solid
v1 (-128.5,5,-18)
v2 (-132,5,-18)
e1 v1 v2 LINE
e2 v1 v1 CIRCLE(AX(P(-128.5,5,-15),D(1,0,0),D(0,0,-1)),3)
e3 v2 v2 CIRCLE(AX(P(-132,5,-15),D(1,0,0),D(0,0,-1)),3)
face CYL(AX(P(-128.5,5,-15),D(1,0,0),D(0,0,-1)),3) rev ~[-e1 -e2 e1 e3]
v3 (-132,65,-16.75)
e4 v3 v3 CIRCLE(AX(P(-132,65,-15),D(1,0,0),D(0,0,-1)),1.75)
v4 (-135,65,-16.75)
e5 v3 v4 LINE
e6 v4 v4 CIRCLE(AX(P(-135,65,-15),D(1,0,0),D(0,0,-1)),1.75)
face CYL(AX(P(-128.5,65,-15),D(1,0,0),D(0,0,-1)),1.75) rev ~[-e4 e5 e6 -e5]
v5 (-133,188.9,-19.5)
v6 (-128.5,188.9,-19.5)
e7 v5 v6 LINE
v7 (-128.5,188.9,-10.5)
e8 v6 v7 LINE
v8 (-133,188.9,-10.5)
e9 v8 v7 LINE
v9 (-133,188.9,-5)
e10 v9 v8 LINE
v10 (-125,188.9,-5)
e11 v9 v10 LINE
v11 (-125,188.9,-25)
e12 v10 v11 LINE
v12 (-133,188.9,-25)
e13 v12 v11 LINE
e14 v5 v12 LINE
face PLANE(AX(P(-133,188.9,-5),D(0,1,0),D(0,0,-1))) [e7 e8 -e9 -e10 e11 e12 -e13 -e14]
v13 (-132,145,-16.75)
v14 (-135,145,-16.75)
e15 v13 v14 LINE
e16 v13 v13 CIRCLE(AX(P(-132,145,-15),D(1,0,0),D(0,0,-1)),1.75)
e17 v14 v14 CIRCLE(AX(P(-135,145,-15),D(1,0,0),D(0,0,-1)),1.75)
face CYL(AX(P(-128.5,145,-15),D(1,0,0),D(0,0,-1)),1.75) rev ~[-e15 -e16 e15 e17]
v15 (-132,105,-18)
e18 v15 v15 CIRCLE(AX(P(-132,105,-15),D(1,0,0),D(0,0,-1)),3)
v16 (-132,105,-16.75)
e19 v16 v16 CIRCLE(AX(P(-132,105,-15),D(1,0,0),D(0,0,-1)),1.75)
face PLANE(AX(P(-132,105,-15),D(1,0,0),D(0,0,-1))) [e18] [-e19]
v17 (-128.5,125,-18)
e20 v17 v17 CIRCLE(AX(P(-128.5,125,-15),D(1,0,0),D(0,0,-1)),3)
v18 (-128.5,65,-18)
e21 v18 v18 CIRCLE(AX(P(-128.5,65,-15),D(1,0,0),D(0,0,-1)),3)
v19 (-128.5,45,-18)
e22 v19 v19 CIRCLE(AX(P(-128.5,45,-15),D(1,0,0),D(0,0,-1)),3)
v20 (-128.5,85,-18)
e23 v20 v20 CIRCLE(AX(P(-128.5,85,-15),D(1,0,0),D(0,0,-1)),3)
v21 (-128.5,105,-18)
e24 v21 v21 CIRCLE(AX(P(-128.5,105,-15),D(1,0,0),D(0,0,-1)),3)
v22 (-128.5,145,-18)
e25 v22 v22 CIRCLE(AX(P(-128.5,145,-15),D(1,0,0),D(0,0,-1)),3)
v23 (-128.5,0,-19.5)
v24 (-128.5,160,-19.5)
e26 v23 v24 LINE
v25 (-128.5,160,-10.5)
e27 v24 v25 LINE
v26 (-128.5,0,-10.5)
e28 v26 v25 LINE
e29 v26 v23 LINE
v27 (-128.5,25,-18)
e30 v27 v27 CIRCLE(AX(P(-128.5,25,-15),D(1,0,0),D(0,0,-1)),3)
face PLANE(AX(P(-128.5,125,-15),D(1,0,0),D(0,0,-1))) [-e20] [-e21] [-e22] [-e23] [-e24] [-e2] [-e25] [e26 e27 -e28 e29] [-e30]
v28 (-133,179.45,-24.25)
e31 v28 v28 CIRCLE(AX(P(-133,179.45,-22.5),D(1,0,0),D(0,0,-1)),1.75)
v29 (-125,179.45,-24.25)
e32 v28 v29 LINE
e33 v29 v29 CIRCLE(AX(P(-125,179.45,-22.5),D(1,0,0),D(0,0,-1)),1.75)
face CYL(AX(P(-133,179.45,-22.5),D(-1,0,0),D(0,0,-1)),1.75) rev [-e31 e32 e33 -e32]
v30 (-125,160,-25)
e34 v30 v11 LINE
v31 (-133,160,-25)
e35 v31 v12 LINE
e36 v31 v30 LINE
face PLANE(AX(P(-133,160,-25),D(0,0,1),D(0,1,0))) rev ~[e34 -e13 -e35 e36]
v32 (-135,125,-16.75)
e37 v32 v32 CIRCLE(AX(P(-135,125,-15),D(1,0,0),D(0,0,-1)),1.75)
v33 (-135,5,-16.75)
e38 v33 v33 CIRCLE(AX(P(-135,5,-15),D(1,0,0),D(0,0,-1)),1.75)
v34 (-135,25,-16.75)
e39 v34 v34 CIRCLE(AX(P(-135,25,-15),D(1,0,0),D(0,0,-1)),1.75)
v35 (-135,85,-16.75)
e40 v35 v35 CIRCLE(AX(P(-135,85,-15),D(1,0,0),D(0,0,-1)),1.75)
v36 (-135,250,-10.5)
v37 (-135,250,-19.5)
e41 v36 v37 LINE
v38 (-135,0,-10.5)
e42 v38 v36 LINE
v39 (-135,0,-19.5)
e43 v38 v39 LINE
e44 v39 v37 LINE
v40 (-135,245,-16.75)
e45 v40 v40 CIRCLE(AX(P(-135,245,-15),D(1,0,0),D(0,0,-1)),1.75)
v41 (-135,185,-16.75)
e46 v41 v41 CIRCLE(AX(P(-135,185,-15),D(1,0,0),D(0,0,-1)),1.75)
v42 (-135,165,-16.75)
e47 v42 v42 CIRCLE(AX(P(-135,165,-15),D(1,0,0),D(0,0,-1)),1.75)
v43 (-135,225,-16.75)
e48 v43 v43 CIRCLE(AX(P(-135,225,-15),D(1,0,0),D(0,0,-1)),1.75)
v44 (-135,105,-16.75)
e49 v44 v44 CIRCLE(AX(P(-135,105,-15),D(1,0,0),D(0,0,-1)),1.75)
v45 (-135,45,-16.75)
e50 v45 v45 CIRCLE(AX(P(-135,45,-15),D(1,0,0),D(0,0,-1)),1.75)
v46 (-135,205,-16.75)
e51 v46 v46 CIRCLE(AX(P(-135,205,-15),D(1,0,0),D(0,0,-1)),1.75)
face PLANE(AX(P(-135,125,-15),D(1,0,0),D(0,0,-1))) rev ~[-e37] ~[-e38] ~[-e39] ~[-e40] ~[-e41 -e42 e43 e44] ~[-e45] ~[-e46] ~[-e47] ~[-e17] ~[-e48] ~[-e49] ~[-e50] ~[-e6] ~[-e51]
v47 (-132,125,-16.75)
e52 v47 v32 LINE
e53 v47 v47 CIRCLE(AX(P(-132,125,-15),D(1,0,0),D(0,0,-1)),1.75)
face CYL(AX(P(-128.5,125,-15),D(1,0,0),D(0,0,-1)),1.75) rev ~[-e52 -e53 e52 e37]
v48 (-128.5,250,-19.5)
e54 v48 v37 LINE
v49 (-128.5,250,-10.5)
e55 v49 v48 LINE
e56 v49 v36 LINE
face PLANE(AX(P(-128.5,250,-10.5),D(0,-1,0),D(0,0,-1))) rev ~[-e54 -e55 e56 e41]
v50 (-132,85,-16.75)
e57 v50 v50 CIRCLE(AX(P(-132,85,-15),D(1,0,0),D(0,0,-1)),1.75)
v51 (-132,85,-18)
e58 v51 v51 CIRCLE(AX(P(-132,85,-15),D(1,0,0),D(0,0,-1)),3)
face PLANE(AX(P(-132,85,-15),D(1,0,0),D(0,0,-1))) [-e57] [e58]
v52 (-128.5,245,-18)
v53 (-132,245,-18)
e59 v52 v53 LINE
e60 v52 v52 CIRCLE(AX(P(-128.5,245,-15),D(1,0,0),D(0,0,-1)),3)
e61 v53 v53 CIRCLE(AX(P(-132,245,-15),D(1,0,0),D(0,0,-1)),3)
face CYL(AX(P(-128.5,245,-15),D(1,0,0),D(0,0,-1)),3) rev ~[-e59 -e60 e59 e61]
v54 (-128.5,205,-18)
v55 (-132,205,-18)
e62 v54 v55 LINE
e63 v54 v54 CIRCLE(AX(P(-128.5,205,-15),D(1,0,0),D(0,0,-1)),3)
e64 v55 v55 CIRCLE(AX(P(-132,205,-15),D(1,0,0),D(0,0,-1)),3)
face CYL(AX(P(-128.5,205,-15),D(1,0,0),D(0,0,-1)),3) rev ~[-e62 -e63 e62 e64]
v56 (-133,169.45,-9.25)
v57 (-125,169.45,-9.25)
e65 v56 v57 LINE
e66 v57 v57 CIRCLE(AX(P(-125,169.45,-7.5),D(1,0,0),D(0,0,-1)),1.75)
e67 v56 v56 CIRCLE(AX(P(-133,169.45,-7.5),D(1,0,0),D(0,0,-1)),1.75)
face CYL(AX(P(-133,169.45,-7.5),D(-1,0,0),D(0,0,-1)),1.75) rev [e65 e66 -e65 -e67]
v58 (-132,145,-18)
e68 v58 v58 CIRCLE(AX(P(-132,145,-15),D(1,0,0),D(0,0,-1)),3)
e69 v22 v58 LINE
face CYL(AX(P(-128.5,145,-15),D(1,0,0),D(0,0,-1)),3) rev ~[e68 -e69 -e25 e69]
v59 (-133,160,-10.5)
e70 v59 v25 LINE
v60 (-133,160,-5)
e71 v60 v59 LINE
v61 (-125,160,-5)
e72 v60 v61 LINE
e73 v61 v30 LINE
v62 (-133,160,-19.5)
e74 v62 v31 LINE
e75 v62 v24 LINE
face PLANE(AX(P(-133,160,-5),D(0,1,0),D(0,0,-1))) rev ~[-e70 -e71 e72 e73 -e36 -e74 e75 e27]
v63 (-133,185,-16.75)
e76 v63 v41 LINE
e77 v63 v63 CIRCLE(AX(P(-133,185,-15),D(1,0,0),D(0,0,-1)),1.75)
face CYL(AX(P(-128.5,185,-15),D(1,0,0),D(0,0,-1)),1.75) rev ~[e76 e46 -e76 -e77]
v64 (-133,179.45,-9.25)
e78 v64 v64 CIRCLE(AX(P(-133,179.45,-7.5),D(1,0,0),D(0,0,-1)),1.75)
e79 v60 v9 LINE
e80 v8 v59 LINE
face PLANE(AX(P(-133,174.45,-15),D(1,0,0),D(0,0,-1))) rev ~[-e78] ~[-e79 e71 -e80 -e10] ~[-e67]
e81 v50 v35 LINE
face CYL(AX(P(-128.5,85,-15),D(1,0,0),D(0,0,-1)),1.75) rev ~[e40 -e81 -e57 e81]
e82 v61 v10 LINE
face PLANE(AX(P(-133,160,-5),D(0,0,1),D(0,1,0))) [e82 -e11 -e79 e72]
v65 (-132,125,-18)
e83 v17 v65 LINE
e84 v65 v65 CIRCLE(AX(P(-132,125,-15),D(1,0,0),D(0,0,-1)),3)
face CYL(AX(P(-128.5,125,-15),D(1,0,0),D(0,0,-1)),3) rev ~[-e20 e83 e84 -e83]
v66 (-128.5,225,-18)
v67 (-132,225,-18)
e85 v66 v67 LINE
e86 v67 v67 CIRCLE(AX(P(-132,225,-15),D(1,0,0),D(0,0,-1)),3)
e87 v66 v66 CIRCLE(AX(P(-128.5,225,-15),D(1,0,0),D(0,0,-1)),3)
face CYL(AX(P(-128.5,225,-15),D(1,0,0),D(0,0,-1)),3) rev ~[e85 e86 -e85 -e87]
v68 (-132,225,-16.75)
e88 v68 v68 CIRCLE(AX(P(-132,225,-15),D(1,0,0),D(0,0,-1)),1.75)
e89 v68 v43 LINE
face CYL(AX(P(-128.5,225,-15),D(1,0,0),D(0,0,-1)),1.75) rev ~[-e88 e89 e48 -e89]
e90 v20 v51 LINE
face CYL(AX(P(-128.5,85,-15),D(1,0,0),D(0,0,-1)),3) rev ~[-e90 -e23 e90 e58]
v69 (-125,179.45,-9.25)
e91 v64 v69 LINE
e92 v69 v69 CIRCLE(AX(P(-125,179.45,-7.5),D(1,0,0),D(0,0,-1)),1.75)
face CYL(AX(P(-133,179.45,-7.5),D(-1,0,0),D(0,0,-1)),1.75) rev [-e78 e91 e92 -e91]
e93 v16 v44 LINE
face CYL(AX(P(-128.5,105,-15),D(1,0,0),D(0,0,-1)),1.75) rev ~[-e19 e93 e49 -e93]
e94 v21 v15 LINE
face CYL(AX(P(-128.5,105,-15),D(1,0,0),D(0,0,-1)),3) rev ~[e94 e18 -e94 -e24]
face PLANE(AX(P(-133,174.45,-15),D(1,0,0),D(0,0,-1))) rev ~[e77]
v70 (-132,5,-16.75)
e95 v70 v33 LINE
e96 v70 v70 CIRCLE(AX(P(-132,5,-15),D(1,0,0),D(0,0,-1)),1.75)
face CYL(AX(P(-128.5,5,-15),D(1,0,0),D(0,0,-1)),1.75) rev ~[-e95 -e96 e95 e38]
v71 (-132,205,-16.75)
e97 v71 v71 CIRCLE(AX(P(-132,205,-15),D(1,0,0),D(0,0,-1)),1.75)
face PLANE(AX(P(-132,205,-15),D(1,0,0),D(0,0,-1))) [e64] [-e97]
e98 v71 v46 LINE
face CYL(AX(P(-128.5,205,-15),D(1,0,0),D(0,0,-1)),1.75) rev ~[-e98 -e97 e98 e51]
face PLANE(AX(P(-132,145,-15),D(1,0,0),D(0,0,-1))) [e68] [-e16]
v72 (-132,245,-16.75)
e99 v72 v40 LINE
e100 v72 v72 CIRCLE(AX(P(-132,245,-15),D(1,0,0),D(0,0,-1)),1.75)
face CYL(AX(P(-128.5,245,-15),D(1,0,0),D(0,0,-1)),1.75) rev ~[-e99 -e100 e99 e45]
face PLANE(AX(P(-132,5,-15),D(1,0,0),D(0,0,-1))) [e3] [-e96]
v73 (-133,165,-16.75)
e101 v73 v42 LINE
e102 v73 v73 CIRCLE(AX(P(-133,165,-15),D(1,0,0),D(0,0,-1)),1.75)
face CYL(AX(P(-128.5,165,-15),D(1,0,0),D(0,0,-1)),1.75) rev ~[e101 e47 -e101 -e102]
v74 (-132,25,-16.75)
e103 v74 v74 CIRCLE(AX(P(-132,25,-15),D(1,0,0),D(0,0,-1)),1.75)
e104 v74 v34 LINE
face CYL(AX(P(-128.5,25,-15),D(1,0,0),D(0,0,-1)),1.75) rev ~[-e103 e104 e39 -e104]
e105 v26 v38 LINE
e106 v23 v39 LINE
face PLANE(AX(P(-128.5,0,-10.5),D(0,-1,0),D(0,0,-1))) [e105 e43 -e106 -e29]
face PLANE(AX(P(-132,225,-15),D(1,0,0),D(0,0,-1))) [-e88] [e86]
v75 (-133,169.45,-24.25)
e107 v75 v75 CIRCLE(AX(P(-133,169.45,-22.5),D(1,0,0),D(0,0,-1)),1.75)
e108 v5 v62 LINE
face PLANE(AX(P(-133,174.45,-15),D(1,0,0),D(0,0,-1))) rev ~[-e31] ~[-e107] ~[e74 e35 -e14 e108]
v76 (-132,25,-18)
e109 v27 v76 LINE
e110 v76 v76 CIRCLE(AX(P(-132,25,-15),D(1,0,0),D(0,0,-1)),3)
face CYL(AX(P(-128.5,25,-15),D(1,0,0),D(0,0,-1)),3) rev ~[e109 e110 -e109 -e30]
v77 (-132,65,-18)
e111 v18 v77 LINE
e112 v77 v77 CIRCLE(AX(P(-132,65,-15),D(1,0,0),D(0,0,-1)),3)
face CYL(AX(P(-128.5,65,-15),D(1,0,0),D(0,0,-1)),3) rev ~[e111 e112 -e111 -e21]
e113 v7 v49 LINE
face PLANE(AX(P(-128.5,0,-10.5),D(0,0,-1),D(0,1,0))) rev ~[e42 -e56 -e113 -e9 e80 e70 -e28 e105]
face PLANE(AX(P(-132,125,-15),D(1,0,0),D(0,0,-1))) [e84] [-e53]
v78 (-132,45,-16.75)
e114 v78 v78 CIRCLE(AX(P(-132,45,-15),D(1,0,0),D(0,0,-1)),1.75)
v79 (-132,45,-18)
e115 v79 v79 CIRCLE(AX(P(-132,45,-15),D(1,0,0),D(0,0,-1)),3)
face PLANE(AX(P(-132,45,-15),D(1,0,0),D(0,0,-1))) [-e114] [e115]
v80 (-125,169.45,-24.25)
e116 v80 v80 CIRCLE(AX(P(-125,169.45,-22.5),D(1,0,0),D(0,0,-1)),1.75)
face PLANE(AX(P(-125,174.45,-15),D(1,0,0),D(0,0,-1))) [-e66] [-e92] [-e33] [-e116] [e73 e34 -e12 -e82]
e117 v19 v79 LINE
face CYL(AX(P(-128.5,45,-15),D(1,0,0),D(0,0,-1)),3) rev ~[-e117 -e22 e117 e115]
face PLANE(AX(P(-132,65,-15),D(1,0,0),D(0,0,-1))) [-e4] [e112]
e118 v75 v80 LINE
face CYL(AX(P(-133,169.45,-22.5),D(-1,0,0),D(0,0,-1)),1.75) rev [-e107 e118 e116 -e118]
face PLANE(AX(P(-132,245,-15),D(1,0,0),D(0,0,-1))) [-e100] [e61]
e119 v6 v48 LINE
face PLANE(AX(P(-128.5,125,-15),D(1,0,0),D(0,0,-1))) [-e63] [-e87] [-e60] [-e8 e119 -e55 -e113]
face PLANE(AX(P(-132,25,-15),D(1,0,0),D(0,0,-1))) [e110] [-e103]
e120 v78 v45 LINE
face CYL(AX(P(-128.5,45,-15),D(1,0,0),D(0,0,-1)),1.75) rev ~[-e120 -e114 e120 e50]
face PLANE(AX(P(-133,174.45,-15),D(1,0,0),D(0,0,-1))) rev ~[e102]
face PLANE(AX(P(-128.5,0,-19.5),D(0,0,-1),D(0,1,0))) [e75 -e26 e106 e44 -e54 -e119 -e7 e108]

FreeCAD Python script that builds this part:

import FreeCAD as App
import Part
import Sketcher
from FreeCAD import Vector
Q = App.Units.Quantity

doc = App.newDocument("Part")
params = doc.addObject("Spreadsheet::Sheet", "Params")
for row, (alias, value) in enumerate([
    ("sketch1_width", "9 mm"),
    ("sketch1_height", "250 mm"),
    ("pad1_length", "6.5 mm"),
    ("sketch2_diameter", "3.5 mm"),
    ("pocket1_length", "6.5 mm"),
    ("linearpattern_pitch", "20 mm"),
    ("sketch3_diameter", "6 mm"),
    ("pocket2_length", "3.5 mm"),
    ("linearpattern2_pitch", "20 mm"),
    ("sketch4_diameter", "3.5 mm"),
    ("sketch4_width", "20 mm"),
    ("sketch4_height", "28.9 mm"),
    ("pad2_length", "8 mm"),
], start=1):
    params.set(f"A{row}", alias)
    params.set(f"B{row}", "=" + value)
    params.setAlias(f"B{row}", alias)

body = doc.addObject("PartDesign::Body", "Body")

# Sketch on XY plane
sketch1 = body.newObject("Sketcher::SketchObject", "Sketch")
sketch1.AttachmentSupport = (doc.getObject("XY_Plane"), [""])
sketch1.MapMode = "FlatFace"
sketch1.addGeometry([
    Part.LineSegment(Vector(-4.5, 250, 0), Vector(-4.5, 0, 0)),
    Part.LineSegment(Vector(-4.5, 0, 0), Vector(4.5, 0, 0)),
    Part.LineSegment(Vector(4.5, 0, 0), Vector(4.5, 250, 0)),
    Part.LineSegment(Vector(4.5, 250, 0), Vector(-4.5, 250, 0)),
], False)
sketch1.addConstraint([
    Sketcher.Constraint("Coincident", 0, 2, 1, 1),
    Sketcher.Constraint("Coincident", 1, 2, 2, 1),
    Sketcher.Constraint("Coincident", 2, 2, 3, 1),
    Sketcher.Constraint("Coincident", 3, 2, 0, 1),
    Sketcher.Constraint("Vertical", 0),
    Sketcher.Constraint("Horizontal", 1),
    Sketcher.Constraint("Vertical", 2),
    Sketcher.Constraint("Horizontal", 3),
    Sketcher.Constraint("Symmetric", 0, 2, 1, 2, -1, 1),
    Sketcher.Constraint("DistanceX", 1, 1, 1, 2, Q("9 mm")),
    Sketcher.Constraint("DistanceY", 0, 2, 0, 1, Q("250 mm")),
])
sketch1.setExpression("Constraints[9]", "Params.sketch1_width")
sketch1.setExpression("Constraints[10]", "Params.sketch1_height")
pad1 = body.newObject("PartDesign::Pad", "Pad")
pad1.Profile = sketch1
pad1.setExpression("Length", "Params.pad1_length")
pad1.Reversed = True

# Sketch on XY plane
sketch2 = body.newObject("Sketcher::SketchObject", "Sketch001")
sketch2.AttachmentSupport = (doc.getObject("XY_Plane"), [""])
sketch2.MapMode = "FlatFace"
sketch2.addGeometry(Part.Circle(Vector(0, 5, 0), Vector(0, 0, 1), 1.75), False)
sketch2.addConstraint([
    Sketcher.Constraint("PointOnObject", 0, 3, -2),
    Sketcher.Constraint("Diameter", 0, Q("3.5 mm")),
    Sketcher.Constraint("DistanceY", -1, 1, 0, 3, Q("5 mm")),
])
sketch2.setExpression("Constraints[1]", "Params.sketch2_diameter")
pocket1 = body.newObject("PartDesign::Pocket", "Pocket")
pocket1.Profile = sketch2
pocket1.setExpression("Length", "Params.pocket1_length")
doc.recompute()

linearpattern = body.newObject("PartDesign::LinearPattern", "LinearPattern")
linearpattern.Originals = [pocket1]
linearpattern.Direction = (doc.getObject("Y_Axis"), [""])
linearpattern.Mode = "offset"
linearpattern.setExpression("Offset", "Params.linearpattern_pitch")
linearpattern.Occurrences = 13
body.Tip = linearpattern

# Sketch on XY plane
sketch3 = body.newObject("Sketcher::SketchObject", "Sketch002")
sketch3.AttachmentSupport = (doc.getObject("XY_Plane"), [""])
sketch3.MapMode = "FlatFace"
sketch3.addGeometry(Part.Circle(Vector(0, 5, 0), Vector(0, 0, 1), 3), False)
sketch3.addConstraint([
    Sketcher.Constraint("PointOnObject", 0, 3, -2),
    Sketcher.Constraint("Diameter", 0, Q("6 mm")),
    Sketcher.Constraint("DistanceY", -1, 1, 0, 3, Q("5 mm")),
])
sketch3.setExpression("Constraints[1]", "Params.sketch3_diameter")
pocket2 = body.newObject("PartDesign::Pocket", "Pocket001")
pocket2.Profile = sketch3
pocket2.setExpression("Length", "Params.pocket2_length")
doc.recompute()

linearpattern2 = body.newObject("PartDesign::LinearPattern", "LinearPattern001")
linearpattern2.Originals = [pocket2]
linearpattern2.Direction = (doc.getObject("Y_Axis"), [""])
linearpattern2.Mode = "offset"
linearpattern2.setExpression("Offset", "Params.linearpattern2_pitch")
linearpattern2.Occurrences = 13
body.Tip = linearpattern2

# Sketch on XY plane
sketch4 = body.newObject("Sketcher::SketchObject", "Sketch003")
sketch4.AttachmentSupport = (doc.getObject("XY_Plane"), [""])
sketch4.MapMode = "FlatFace"
sketch4.AttachmentOffset = App.Placement(Vector(0, 0, -4.5), App.Rotation())
sketch4.addGeometry([
    Part.LineSegment(Vector(-10, 188.9, 0), Vector(-10, 160, 0)),  # 0
    Part.LineSegment(Vector(-10, 160, 0), Vector(10, 160, 0)),  # 1
    Part.LineSegment(Vector(10, 160, 0), Vector(10, 188.9, 0)),  # 2
    Part.LineSegment(Vector(10, 188.9, 0), Vector(-10, 188.9, 0)),  # 3
    Part.Circle(Vector(-7.5, 169.45, 0), Vector(0, 0, 1), 1.75),  # 4
    Part.Circle(Vector(7.5, 169.45, 0), Vector(0, 0, 1), 1.75),  # 5
    Part.Circle(Vector(-7.5, 179.45, 0), Vector(0, 0, 1), 1.75),  # 6
    Part.Circle(Vector(7.5, 179.45, 0), Vector(0, 0, 1), 1.75),  # 7
], False)
sketch4.addConstraint([
    Sketcher.Constraint("Coincident", 0, 2, 1, 1),
    Sketcher.Constraint("Coincident", 1, 2, 2, 1),
    Sketcher.Constraint("Coincident", 2, 2, 3, 1),
    Sketcher.Constraint("Coincident", 3, 2, 0, 1),
    Sketcher.Constraint("Vertical", 0),
    Sketcher.Constraint("Horizontal", 1),
    Sketcher.Constraint("Vertical", 2),
    Sketcher.Constraint("Horizontal", 3),
    Sketcher.Constraint("Equal", 4, 5),
    Sketcher.Constraint("Equal", 5, 6),
    Sketcher.Constraint("Equal", 6, 7),
    Sketcher.Constraint("Symmetric", 4, 3, 5, 3, -2),
    Sketcher.Constraint("Symmetric", 6, 3, 7, 3, -2),
    Sketcher.Constraint("Vertical", 4, 3, 6, 3),
    Sketcher.Constraint("Diameter", 4, Q("3.5 mm")),
    Sketcher.Constraint("DistanceX", 1, 1, 1, 2, Q("20 mm")),
    Sketcher.Constraint("DistanceY", 0, 2, 0, 1, Q("28.9 mm")),
    Sketcher.Constraint("DistanceX", 0, 2, -1, 1, Q("10 mm")),
    Sketcher.Constraint("DistanceY", -1, 1, 0, 2, Q("160 mm")),
    Sketcher.Constraint("DistanceX", 4, 3, 5, 3, Q("15 mm")),
    Sketcher.Constraint("DistanceY", 4, 3, 6, 3, Q("10 mm")),
    Sketcher.Constraint("DistanceY", -1, 1, 4, 3, Q("169.45 mm")),
])
sketch4.setExpression("Constraints[14]", "Params.sketch4_diameter")
sketch4.setExpression("Constraints[15]", "Params.sketch4_width")
sketch4.setExpression("Constraints[16]", "Params.sketch4_height")
pad2 = body.newObject("PartDesign::Pad", "Pad001")
pad2.Profile = sketch4
pad2.setExpression("Length", "Params.pad2_length")
body2 = doc.addObject("PartDesign::Body", "Body001")
doc.recompute()

body.Placement = App.Placement(Vector(-128.5, 0, -15), App.Rotation(Vector(0, 1, 0), 90))
boolean = body2.newObject("PartDesign::Boolean", "Boolean")
boolean.Type = "Fuse"
boolean.addObjects([body])

doc.recompute()
